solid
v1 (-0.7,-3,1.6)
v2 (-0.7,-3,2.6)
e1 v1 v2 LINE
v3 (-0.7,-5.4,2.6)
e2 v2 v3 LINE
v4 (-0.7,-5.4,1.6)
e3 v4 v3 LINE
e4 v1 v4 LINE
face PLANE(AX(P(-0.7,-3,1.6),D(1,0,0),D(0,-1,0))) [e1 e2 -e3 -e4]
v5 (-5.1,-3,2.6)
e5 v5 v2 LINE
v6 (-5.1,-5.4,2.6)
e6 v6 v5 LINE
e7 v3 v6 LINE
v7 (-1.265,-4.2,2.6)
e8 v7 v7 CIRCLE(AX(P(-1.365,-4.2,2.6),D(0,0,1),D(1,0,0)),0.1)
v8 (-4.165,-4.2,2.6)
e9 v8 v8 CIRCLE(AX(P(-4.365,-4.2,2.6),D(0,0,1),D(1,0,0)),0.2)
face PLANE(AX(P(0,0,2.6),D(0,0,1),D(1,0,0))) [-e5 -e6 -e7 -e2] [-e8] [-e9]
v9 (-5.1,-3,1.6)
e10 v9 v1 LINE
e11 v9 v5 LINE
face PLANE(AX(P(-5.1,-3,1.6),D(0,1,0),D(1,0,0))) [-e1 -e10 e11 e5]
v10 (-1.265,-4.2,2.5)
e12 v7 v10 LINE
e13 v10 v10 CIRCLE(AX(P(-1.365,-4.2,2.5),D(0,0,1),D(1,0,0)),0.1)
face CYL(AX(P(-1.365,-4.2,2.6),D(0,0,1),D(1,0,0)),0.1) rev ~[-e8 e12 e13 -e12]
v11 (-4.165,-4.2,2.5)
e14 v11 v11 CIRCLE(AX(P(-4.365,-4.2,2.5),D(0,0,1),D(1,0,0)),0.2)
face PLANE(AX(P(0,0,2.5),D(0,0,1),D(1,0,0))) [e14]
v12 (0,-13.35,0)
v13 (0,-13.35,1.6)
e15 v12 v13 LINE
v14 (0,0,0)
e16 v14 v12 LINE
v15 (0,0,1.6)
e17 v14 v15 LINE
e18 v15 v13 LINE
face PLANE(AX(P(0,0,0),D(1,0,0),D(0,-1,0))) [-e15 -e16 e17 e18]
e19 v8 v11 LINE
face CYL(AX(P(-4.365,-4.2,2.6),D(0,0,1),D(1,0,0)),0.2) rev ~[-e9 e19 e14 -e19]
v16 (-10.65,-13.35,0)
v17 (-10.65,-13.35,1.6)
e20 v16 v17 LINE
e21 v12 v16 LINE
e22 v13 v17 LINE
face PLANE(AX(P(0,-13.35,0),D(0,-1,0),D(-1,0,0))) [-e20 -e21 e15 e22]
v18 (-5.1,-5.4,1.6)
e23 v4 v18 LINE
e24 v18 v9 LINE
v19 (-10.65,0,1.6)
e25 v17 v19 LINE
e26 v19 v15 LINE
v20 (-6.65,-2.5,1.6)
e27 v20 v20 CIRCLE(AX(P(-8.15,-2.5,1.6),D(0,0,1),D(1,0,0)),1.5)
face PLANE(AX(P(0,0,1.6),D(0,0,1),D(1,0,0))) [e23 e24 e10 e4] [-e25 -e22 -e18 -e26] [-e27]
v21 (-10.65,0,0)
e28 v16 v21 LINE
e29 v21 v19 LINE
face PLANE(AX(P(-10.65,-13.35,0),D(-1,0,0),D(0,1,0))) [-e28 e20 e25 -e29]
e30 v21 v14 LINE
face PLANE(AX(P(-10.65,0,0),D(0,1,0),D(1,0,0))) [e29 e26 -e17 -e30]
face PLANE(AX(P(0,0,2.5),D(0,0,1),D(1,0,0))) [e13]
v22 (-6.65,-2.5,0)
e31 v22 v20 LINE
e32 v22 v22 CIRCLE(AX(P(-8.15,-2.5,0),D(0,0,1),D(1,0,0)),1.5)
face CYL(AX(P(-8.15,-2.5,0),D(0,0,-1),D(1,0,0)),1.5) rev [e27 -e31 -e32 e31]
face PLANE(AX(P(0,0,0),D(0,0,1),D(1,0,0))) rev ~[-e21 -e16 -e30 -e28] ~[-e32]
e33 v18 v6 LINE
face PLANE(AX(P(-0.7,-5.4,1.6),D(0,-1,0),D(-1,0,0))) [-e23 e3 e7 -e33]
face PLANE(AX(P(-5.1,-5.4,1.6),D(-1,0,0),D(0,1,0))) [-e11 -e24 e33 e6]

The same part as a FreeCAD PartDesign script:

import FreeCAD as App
import Part
import Sketcher
from FreeCAD import Vector


def add_polygon(sketch, points):
    """Adds a closed chain of lines whose ends are joined by coincident constraints."""
    first, n = sketch.GeometryCount, len(points)
    for a, b in zip(points, points[1:] + points[:1]):
        sketch.addGeometry(Part.LineSegment(App.Vector(*a, 0), App.Vector(*b, 0)), False)
    for i in range(n):
        sketch.addConstraint(Sketcher.Constraint("Coincident", first + i, 2, first + (i + 1) % n, 1))

doc = App.newDocument("Part")
body = doc.addObject("PartDesign::Body", "Body")

# Sketch on XY plane
sketch1 = doc.addObject("Sketcher::SketchObject", "Sketch")
body.addObject(sketch1)
sketch1.AttachmentSupport = (doc.XY_Plane, [""])
sketch1.MapMode = "FlatFace"
add_polygon(sketch1, [(0, 0), (-10.7, 0), (-10.7, -13.3), (0, -13.3)])  # lines 0-3
sketch1.addGeometry(Part.Circle(Vector(-8.2, -2.5, 0), Vector(0, 0, 1), 1.5), False)  # 4
sketch1.addConstraint(Sketcher.Constraint("Horizontal", 0))
sketch1.addConstraint(Sketcher.Constraint("Vertical", 1))
sketch1.addConstraint(Sketcher.Constraint("Horizontal", 2))
sketch1.addConstraint(Sketcher.Constraint("Vertical", 3))
sketch1.addConstraint(Sketcher.Constraint("Coincident", 3, 2, -1, 1))
sketch1.addConstraint(Sketcher.Constraint("Diameter", 4, 3.0))
sketch1.addConstraint(Sketcher.Constraint("DistanceX", 0, 2, 0, 1, 10.65))
sketch1.addConstraint(Sketcher.Constraint("DistanceY", 1, 2, 1, 1, 13.35))
sketch1.addConstraint(Sketcher.Constraint("DistanceY", 4, 3, -1, 1, 2.5))
sketch1.addConstraint(Sketcher.Constraint("DistanceX", 0, 2, 4, 3, 2.5))
pad1 = doc.addObject("PartDesign::Pad", "Pad")
body.addObject(pad1)
pad1.Profile = sketch1
pad1.Length = 1.6

# Sketch on XY plane
sketch2 = doc.addObject("Sketcher::SketchObject", "Sketch001")
body.addObject(sketch2)
sketch2.AttachmentSupport = (doc.XY_Plane, [""])
sketch2.MapMode = "FlatFace"
sketch2.AttachmentOffset = App.Placement(Vector(0, 0, 1.6), App.Rotation())
add_polygon(sketch2, [(-0.7, -3), (-5.1, -3), (-5.1, -5.4), (-0.7, -5.4)])  # lines 0-3
sketch2.addConstraint(Sketcher.Constraint("Horizontal", 0))
sketch2.addConstraint(Sketcher.Constraint("Vertical", 1))
sketch2.addConstraint(Sketcher.Constraint("Horizontal", 2))
sketch2.addConstraint(Sketcher.Constraint("Vertical", 3))
sketch2.addConstraint(Sketcher.Constraint("DistanceX", 0, 2, 0, 1, 4.4))
sketch2.addConstraint(Sketcher.Constraint("DistanceY", 1, 2, 1, 1, 2.4))
sketch2.addConstraint(Sketcher.Constraint("DistanceY", 0, 2, -1, 1, 3.0))
sketch2.addConstraint(Sketcher.Constraint("DistanceX", 2, 2, -1, 1, 0.7))
pad2 = doc.addObject("PartDesign::Pad", "Pad001")
body.addObject(pad2)
pad2.Profile = sketch2
pad2.Length = 1

# Sketch on XY plane
sketch3 = doc.addObject("Sketcher::SketchObject", "Sketch002")
body.addObject(sketch3)
sketch3.AttachmentSupport = (doc.XY_Plane, [""])
sketch3.MapMode = "FlatFace"
sketch3.AttachmentOffset = App.Placement(Vector(0, 0, 2.6), App.Rotation())
sketch3.addGeometry(Part.Circle(Vector(-4.37, -4.2, 0), Vector(0, 0, 1), 0.2), False)
sketch3.addGeometry(Part.Circle(Vector(-1.36, -4.2, 0), Vector(0, 0, 1), 0.1), False)
sketch3.addConstraint(Sketcher.Constraint("Horizontal", 0, 3, 1, 3))
sketch3.addConstraint(Sketcher.Constraint("Diameter", 0, 0.4))
sketch3.addConstraint(Sketcher.Constraint("Diameter", 1, 0.2))
sketch3.addConstraint(Sketcher.Constraint("DistanceX", 0, 3, 1, 3, 3.0))
sketch3.addConstraint(Sketcher.Constraint("DistanceY", 0, 3, -1, 1, 4.2))
sketch3.addConstraint(Sketcher.Constraint("DistanceX", 0, 3, -1, 1, 4.365))
pocket1 = doc.addObject("PartDesign::Pocket", "Pocket")
body.addObject(pocket1)
pocket1.Profile = sketch3
pocket1.Length = 0.1

doc.recompute()
